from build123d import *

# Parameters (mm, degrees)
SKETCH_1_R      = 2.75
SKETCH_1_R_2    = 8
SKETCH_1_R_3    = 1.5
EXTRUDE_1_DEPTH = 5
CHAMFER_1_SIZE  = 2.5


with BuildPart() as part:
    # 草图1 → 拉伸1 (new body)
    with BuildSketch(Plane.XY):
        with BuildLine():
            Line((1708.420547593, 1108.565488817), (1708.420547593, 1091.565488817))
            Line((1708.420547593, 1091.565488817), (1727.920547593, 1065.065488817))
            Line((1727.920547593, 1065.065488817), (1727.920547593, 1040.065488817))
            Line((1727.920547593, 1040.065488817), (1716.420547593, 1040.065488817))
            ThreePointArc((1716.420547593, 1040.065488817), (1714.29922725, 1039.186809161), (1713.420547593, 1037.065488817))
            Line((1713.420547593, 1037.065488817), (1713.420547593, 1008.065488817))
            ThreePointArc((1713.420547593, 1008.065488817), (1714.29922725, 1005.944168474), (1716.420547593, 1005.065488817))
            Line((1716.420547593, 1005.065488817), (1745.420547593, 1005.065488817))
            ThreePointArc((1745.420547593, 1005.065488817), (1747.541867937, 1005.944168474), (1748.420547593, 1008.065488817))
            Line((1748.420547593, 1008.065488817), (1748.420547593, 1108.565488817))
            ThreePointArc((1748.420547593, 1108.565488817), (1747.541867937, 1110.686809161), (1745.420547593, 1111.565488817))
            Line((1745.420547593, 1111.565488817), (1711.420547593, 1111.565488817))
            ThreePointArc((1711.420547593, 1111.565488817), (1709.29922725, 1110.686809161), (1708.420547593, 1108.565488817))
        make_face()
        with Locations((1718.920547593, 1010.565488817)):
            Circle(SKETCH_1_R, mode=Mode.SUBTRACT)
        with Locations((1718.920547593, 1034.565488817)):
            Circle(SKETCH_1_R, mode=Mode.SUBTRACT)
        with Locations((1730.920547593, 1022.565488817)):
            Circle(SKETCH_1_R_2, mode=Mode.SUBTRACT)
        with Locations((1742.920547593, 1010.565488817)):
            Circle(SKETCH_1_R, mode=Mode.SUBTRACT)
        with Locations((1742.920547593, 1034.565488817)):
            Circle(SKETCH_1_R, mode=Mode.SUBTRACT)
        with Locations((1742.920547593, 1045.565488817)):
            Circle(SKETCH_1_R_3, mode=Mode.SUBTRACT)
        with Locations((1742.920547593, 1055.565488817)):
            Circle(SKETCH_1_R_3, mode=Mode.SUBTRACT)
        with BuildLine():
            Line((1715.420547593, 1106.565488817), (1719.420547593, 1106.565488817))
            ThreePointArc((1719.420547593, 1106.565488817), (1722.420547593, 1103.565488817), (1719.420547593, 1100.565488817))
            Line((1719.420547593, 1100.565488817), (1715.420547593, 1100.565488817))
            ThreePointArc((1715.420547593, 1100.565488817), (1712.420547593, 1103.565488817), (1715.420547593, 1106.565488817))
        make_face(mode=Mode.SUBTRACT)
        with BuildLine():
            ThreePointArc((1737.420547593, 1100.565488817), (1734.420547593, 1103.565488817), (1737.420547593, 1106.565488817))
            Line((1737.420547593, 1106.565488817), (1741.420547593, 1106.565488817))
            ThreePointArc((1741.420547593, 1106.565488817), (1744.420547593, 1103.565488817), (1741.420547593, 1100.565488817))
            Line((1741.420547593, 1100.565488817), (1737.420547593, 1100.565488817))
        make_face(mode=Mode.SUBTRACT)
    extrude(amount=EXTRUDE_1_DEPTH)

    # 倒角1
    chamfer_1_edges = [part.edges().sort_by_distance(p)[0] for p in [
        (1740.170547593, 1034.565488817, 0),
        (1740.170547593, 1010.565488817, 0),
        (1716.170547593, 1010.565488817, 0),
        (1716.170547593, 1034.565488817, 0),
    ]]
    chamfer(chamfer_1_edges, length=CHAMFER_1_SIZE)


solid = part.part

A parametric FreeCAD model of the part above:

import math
import FreeCAD as App
import Part
import Sketcher
Q = App.Units.Quantity


def edges_at(feature, points):
    """Names of the edges that pass closest to the given points."""
    edges = feature.Shape.Edges
    near = lambda p: min(range(len(edges)), key=lambda i: edges[i].distToShape(Part.Vertex(*p))[0])
    return sorted({f"Edge{near(p) + 1}" for p in points})

doc = App.newDocument("Part")
body = doc.addObject("PartDesign::Body", "Body")

# Sketch on XY plane
sketch1 = body.newObject("Sketcher::SketchObject", "Sketch")
sketch1.AttachmentSupport = (doc.getObject("XY_Plane"), [""])
sketch1.MapMode = "FlatFace"
sketch1.addGeometry([
    Part.LineSegment(App.Vector(1708.4, 1108.6, 0), App.Vector(1708.4, 1091.6, 0)),  # 0
    Part.LineSegment(App.Vector(1708.4, 1091.6, 0), App.Vector(1727.9, 1065.1, 0)),  # 1
    Part.LineSegment(App.Vector(1727.9, 1065.1, 0), App.Vector(1727.9, 1040.1, 0)),  # 2
    Part.LineSegment(App.Vector(1727.9, 1040.1, 0), App.Vector(1716.4, 1040.1, 0)),  # 3
    Part.ArcOfCircle(Part.Circle(App.Vector(1716.4, 1037.1, 0), App.Vector(0, 0, 1), 3), math.radians(90), math.radians(180)),  # 4
    Part.LineSegment(App.Vector(1713.4, 1037.1, 0), App.Vector(1713.4, 1008.1, 0)),  # 5
    Part.ArcOfCircle(Part.Circle(App.Vector(1716.4, 1008.1, 0), App.Vector(0, 0, 1), 3), math.radians(-180), math.radians(-90)),  # 6
    Part.LineSegment(App.Vector(1716.4, 1005.1, 0), App.Vector(1745.4, 1005.1, 0)),  # 7
    Part.ArcOfCircle(Part.Circle(App.Vector(1745.4, 1008.1, 0), App.Vector(0, 0, 1), 3), math.radians(-90), math.radians(0)),  # 8
    Part.LineSegment(App.Vector(1748.4, 1008.1, 0), App.Vector(1748.4, 1108.6, 0)),  # 9
    Part.ArcOfCircle(Part.Circle(App.Vector(1745.4, 1108.6, 0), App.Vector(0, 0, 1), 3), math.radians(0), math.radians(90)),  # 10
    Part.LineSegment(App.Vector(1745.4, 1111.6, 0), App.Vector(1711.4, 1111.6, 0)),  # 11
    Part.ArcOfCircle(Part.Circle(App.Vector(1711.4, 1108.6, 0), App.Vector(0, 0, 1), 3), math.radians(90), math.radians(180)),  # 12
    Part.Circle(App.Vector(1718.9, 1010.6, 0), App.Vector(0, 0, 1), 2.8),  # 13
    Part.Circle(App.Vector(1718.9, 1034.6, 0), App.Vector(0, 0, 1), 2.8),  # 14
    Part.Circle(App.Vector(1730.9, 1022.6, 0), App.Vector(0, 0, 1), 8),  # 15
    Part.Circle(App.Vector(1742.9, 1010.6, 0), App.Vector(0, 0, 1), 2.8),  # 16
    Part.Circle(App.Vector(1742.9, 1034.6, 0), App.Vector(0, 0, 1), 2.8),  # 17
    Part.Circle(App.Vector(1742.9, 1045.6, 0), App.Vector(0, 0, 1), 1.5),  # 18
    Part.Circle(App.Vector(1742.9, 1055.6, 0), App.Vector(0, 0, 1), 1.5),  # 19
    Part.ArcOfCircle(Part.Circle(App.Vector(1715.4, 1103.6, 0), App.Vector(0, 0, 1), 3), math.radians(90), math.radians(270)),  # 20
    Part.LineSegment(App.Vector(1715.4, 1106.6, 0), App.Vector(1719.4, 1106.6, 0)),  # 21
    Part.ArcOfCircle(Part.Circle(App.Vector(1719.4, 1103.6, 0), App.Vector(0, 0, 1), 3), math.radians(-90), math.radians(90)),  # 22
    Part.LineSegment(App.Vector(1719.4, 1100.6, 0), App.Vector(1715.4, 1100.6, 0)),  # 23
    Part.LineSegment(App.Vector(1741.4, 1100.6, 0), App.Vector(1737.4, 1100.6, 0)),  # 24
    Part.ArcOfCircle(Part.Circle(App.Vector(1737.4, 1103.6, 0), App.Vector(0, 0, 1), 3), math.radians(90), math.radians(270)),  # 25
    Part.LineSegment(App.Vector(1737.4, 1106.6, 0), App.Vector(1741.4, 1106.6, 0)),  # 26
    Part.ArcOfCircle(Part.Circle(App.Vector(1741.4, 1103.6, 0), App.Vector(0, 0, 1), 3), math.radians(-90), math.radians(90)),  # 27
], False)
sketch1.addConstraint([
    Sketcher.Constraint("Coincident", 0, 2, 1, 1),
    Sketcher.Constraint("Coincident", 1, 2, 2, 1),
    Sketcher.Constraint("Coincident", 2, 2, 3, 1),
    Sketcher.Constraint("Tangent", 3, 2, 4, 1),
    Sketcher.Constraint("Tangent", 4, 2, 5, 1),
    Sketcher.Constraint("Tangent", 5, 2, 6, 1),
    Sketcher.Constraint("Tangent", 6, 2, 7, 1),
    Sketcher.Constraint("Tangent", 7, 2, 8, 1),
    Sketcher.Constraint("Tangent", 8, 2, 9, 1),
    Sketcher.Constraint("Tangent", 9, 2, 10, 1),
    Sketcher.Constraint("Tangent", 10, 2, 11, 1),
    Sketcher.Constraint("Tangent", 11, 2, 12, 1),
    Sketcher.Constraint("Tangent", 12, 2, 0, 1),
    Sketcher.Constraint("Tangent", 20, 1, 21, 1),
    Sketcher.Constraint("Tangent", 21, 2, 22, 2),
    Sketcher.Constraint("Tangent", 22, 1, 23, 1),
    Sketcher.Constraint("Tangent", 23, 2, 20, 2),
    Sketcher.Constraint("Tangent", 24, 2, 25, 2),
    Sketcher.Constraint("Tangent", 25, 1, 26, 1),
    Sketcher.Constraint("Tangent", 26, 2, 27, 2),
    Sketcher.Constraint("Tangent", 27, 1, 24, 1),
    Sketcher.Constraint("Vertical", 0),
    Sketcher.Constraint("Vertical", 2),
    Sketcher.Constraint("Horizontal", 3),
    Sketcher.Constraint("Vertical", 5),
    Sketcher.Constraint("Horizontal", 7),
    Sketcher.Constraint("Vertical", 9),
    Sketcher.Constraint("Horizontal", 11),
    Sketcher.Constraint("Horizontal", 21),
    Sketcher.Constraint("Horizontal", 23),
    Sketcher.Constraint("Horizontal", 24),
    Sketcher.Constraint("Horizontal", 26),
    Sketcher.Constraint("Equal", 4, 6),
    Sketcher.Constraint("Equal", 6, 8),
    Sketcher.Constraint("Equal", 8, 10),
    Sketcher.Constraint("Equal", 10, 12),
    Sketcher.Constraint("Equal", 13, 14),
    Sketcher.Constraint("Equal", 14, 16),
    Sketcher.Constraint("Equal", 16, 17),
    Sketcher.Constraint("Equal", 18, 19),
    Sketcher.Constraint("Equal", 12, 20),
    Sketcher.Constraint("Equal", 22, 25),
    Sketcher.Constraint("Horizontal", 13, 3, 16, 3),
    Sketcher.Constraint("Horizontal", 14, 3, 17, 3),
    Sketcher.Constraint("Horizontal", 22, 3, 25, 3),
    Sketcher.Constraint("Vertical", 13, 3, 14, 3),
    Sketcher.Constraint("Vertical", 16, 3, 17, 3),
    Sketcher.Constraint("Vertical", 17, 3, 18, 3),
    Sketcher.Constraint("Vertical", 18, 3, 19, 3),
    Sketcher.Constraint("Equal", 23, 24),
    Sketcher.Constraint("Equal", 7, 5),
    Sketcher.Constraint("Diameter", 15, Q("16 mm")),
    Sketcher.Constraint("Diameter", 18, Q("3 mm")),
    Sketcher.Constraint("Radius", 4, Q("3 mm")),
    Sketcher.Constraint("Diameter", 13, Q("5.5 mm")),
    Sketcher.Constraint("DistanceX", 7, 1, 7, 2, Q("29 mm")),
    Sketcher.Constraint("DistanceX", 11, 2, 11, 1, Q("34 mm")),
    Sketcher.Constraint("DistanceX", 21, 1, 21, 2, Q("4 mm")),
    Sketcher.Constraint("DistanceY", 0, 2, 0, 1, Q("17 mm")),
    Sketcher.Constraint("DistanceY", 2, 2, 2, 1, Q("25 mm")),
    Sketcher.Constraint("DistanceX", 3, 2, 3, 1, Q("11.5 mm")),
    Sketcher.Constraint("DistanceY", 9, 1, 9, 2, Q("100.5 mm")),
    Sketcher.Constraint("DistanceY", 13, 3, 12, 3, Q("98 mm")),
    Sketcher.Constraint("DistanceY", 13, 3, 14, 3, Q("24 mm")),
    Sketcher.Constraint("DistanceX", 13, 3, 15, 3, Q("12 mm")),
    Sketcher.Constraint("DistanceY", 13, 3, 15, 3, Q("12 mm")),
    Sketcher.Constraint("DistanceX", 15, 3, 16, 3, Q("12 mm")),
    Sketcher.Constraint("DistanceY", 17, 3, 18, 3, Q("11 mm")),
    Sketcher.Constraint("DistanceY", 18, 3, 19, 3, Q("10 mm")),
    Sketcher.Constraint("DistanceX", 12, 3, 20, 3, Q("4 mm")),
    Sketcher.Constraint("DistanceY", 20, 3, 12, 3, Q("5 mm")),
    Sketcher.Constraint("DistanceX", 25, 3, 10, 3, Q("8 mm")),
    Sketcher.Constraint("DistanceX", 1, 2, 19, 3, Q("15 mm")),
    Sketcher.Constraint("DistanceY", -1, 1, 4, 3, Q("1037.065489 mm")),
    Sketcher.Constraint("DistanceX", -1, 1, 4, 3, Q("1716.420548 mm")),
])
pad1 = body.newObject("PartDesign::Pad", "Pad")
pad1.Profile = sketch1
pad1.Length = 5
doc.recompute()

chamfer = body.newObject("PartDesign::Chamfer", "Chamfer")
chamfer.Base = (pad1, edges_at(pad1, [
    (1740.171, 1034.565, 0),
    (1740.171, 1010.565, 0),
    (1716.171, 1010.565, 0),
    (1716.171, 1034.565, 0),
]))
chamfer.Size = 2.5

doc.recompute()
